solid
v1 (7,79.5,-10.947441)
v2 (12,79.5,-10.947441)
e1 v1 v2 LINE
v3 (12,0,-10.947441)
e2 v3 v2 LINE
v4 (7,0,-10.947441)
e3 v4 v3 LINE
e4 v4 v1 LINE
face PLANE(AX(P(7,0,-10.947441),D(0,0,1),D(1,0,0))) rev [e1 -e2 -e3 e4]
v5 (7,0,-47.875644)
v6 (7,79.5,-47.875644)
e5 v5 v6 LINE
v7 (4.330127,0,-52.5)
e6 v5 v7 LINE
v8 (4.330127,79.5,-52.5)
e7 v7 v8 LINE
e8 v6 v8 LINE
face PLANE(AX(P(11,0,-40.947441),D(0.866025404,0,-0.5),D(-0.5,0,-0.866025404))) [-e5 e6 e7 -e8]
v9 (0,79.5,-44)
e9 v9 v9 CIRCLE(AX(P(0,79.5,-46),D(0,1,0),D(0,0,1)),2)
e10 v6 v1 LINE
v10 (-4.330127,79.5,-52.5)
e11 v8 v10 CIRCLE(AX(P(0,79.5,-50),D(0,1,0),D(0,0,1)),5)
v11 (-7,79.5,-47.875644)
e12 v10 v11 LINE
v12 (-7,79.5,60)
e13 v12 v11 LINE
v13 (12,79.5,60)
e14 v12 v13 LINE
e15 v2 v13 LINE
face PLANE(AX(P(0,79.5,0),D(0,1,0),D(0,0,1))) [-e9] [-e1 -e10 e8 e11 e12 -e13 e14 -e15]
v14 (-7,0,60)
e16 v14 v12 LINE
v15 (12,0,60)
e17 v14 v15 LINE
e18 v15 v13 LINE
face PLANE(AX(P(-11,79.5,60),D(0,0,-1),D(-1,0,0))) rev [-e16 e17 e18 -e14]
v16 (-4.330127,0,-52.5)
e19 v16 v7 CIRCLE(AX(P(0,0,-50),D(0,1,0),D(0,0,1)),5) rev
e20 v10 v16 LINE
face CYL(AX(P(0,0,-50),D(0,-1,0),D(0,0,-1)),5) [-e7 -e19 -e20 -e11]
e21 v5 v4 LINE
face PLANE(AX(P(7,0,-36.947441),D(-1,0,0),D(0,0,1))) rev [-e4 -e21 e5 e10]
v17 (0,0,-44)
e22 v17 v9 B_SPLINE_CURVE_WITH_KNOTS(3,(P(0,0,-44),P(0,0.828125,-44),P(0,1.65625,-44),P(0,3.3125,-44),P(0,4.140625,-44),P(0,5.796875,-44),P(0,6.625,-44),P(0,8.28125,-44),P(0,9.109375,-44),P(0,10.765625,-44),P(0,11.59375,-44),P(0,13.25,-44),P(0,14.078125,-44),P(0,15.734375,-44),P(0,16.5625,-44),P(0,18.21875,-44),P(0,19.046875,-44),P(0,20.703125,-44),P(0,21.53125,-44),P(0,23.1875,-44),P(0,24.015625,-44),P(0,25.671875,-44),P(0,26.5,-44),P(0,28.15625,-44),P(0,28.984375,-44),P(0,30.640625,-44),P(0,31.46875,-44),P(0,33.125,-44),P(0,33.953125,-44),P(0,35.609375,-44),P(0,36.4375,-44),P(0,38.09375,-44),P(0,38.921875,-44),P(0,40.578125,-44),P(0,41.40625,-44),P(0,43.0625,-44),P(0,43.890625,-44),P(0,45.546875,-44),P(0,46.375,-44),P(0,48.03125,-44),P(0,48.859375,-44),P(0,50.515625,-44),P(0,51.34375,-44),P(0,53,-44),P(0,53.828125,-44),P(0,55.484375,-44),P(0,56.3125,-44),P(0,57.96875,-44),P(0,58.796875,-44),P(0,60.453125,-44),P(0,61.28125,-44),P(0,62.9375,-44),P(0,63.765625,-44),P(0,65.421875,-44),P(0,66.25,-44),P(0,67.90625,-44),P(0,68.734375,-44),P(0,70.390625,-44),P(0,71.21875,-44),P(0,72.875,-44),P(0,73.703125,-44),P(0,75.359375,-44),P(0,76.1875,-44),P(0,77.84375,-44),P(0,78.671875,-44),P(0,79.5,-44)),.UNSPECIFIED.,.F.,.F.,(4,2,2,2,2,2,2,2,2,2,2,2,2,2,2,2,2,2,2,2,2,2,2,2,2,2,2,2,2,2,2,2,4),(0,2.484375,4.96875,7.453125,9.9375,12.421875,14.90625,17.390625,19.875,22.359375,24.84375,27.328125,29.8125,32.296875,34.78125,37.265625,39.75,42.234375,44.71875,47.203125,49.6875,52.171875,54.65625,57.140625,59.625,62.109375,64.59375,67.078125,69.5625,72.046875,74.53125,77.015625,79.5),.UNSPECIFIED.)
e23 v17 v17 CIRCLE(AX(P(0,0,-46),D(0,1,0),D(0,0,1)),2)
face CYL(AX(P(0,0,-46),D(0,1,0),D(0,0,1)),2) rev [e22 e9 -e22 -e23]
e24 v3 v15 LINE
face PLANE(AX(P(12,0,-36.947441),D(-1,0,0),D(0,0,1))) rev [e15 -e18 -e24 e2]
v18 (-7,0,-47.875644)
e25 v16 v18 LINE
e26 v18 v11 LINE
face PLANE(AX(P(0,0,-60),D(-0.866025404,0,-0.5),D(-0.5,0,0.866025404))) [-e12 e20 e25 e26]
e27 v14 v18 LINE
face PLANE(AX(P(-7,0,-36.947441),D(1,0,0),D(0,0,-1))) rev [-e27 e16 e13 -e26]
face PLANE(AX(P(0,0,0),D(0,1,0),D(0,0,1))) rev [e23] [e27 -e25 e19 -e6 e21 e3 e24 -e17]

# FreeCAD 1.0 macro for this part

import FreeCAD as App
import Part
import Sketcher
from FreeCAD import Vector
Q = App.Units.Quantity


def edges_at(feature, points):
    """Names of the edges that pass closest to the given points."""
    edges = feature.Shape.Edges
    near = lambda p: min(range(len(edges)), key=lambda i: edges[i].distToShape(Part.Vertex(*p))[0])
    return sorted({f"Edge{near(p) + 1}" for p in points})

doc = App.newDocument("Part")
body = doc.addObject("PartDesign::Body", "Body")

# Sketch on XZ plane
sketch1 = body.newObject("Sketcher::SketchObject", "Sketch")
sketch1.AttachmentSupport = (doc.getObject("XZ_Plane"), [""])
sketch1.MapMode = "FlatFace"
sketch1.addGeometry([
    Part.LineSegment(Vector(-11, -60, 0), Vector(-11, 60, 0)),
    Part.LineSegment(Vector(-11, 60, 0), Vector(11, 60, 0)),
    Part.LineSegment(Vector(11, 60, 0), Vector(11, -60, 0)),
    Part.LineSegment(Vector(11, -60, 0), Vector(-11, -60, 0)),
], False)
sketch1.addConstraint([
    Sketcher.Constraint("Coincident", 0, 2, 1, 1),
    Sketcher.Constraint("Coincident", 1, 2, 2, 1),
    Sketcher.Constraint("Coincident", 2, 2, 3, 1),
    Sketcher.Constraint("Coincident", 3, 2, 0, 1),
    Sketcher.Constraint("Vertical", 0),
    Sketcher.Constraint("Horizontal", 1),
    Sketcher.Constraint("Vertical", 2),
    Sketcher.Constraint("Horizontal", 3),
    Sketcher.Constraint("Symmetric", 0, 2, 2, 2, -1, 1),
    Sketcher.Constraint("DistanceX", 1, 1, 1, 2, 22.0),
    Sketcher.Constraint("DistanceY", 0, 1, 0, 2, 120.0),
])
pad1 = body.newObject("PartDesign::Pad", "Pad")
pad1.Profile = sketch1
pad1.Length = 79.5
pad1.Reversed = True

# Sketch on XZ plane
sketch2 = body.newObject("Sketcher::SketchObject", "Sketch001")
sketch2.AttachmentSupport = (doc.getObject("XZ_Plane"), [""])
sketch2.MapMode = "FlatFace"
sketch2.AttachmentOffset = App.Placement(Vector(0, 0, -79.5), App.Rotation())
sketch2.addGeometry([
    Part.LineSegment(Vector(-27, -76, 0), Vector(-27, 76, 0)),  # 0
    Part.LineSegment(Vector(-27, 76, 0), Vector(27, 76, 0)),  # 1
    Part.LineSegment(Vector(27, 76, 0), Vector(27, -76, 0)),  # 2
    Part.LineSegment(Vector(27, -76, 0), Vector(-27, -76, 0)),  # 3
    Part.LineSegment(Vector(-11, -41, 0), Vector(0, -60, 0)),  # 4
    Part.LineSegment(Vector(0, -60, 0), Vector(11, -41, 0)),  # 5
    Part.LineSegment(Vector(11, -41, 0), Vector(11, 60, 0)),  # 6
    Part.LineSegment(Vector(11, 60, 0), Vector(-11, 60, 0)),  # 7
    Part.LineSegment(Vector(-11, 60, 0), Vector(-11, -41, 0)),  # 8
], False)
sketch2.addConstraint([
    Sketcher.Constraint("Coincident", 0, 2, 1, 1),
    Sketcher.Constraint("Coincident", 1, 2, 2, 1),
    Sketcher.Constraint("Coincident", 2, 2, 3, 1),
    Sketcher.Constraint("Coincident", 3, 2, 0, 1),
    Sketcher.Constraint("Coincident", 4, 2, 5, 1),
    Sketcher.Constraint("Coincident", 5, 2, 6, 1),
    Sketcher.Constraint("Coincident", 6, 2, 7, 1),
    Sketcher.Constraint("Coincident", 7, 2, 8, 1),
    Sketcher.Constraint("Coincident", 8, 2, 4, 1),
    Sketcher.Constraint("Vertical", 0),
    Sketcher.Constraint("Horizontal", 1),
    Sketcher.Constraint("Vertical", 2),
    Sketcher.Constraint("Horizontal", 3),
    Sketcher.Constraint("Vertical", 6),
    Sketcher.Constraint("Horizontal", 7),
    Sketcher.Constraint("Vertical", 8),
    Sketcher.Constraint("Symmetric", 0, 2, 2, 2, -1, 1),
    Sketcher.Constraint("Symmetric", 5, 2, 8, 2, -2),
    Sketcher.Constraint("PointOnObject", 4, 2, -2),
    Sketcher.Constraint("DistanceX", 7, 2, 7, 1, 22.0),
    Sketcher.Constraint("Angle", 4, Q("-60 deg")),
    Sketcher.Constraint("DistanceY", 4, 2, -1, 1, 60.0),
    Sketcher.Constraint("DistanceY", -1, 1, 6, 2, 60.0),
    Sketcher.Constraint("DistanceX", 1, 1, 1, 2, 53.124),
    Sketcher.Constraint("DistanceY", 0, 1, 0, 2, 151.124),
])
pocket1 = body.newObject("PartDesign::Pocket", "Pocket")
pocket1.Profile = sketch2
pocket1.Type = "ThroughAll"
pocket1.Reversed = True
doc.recompute()

fillet = body.newObject("PartDesign::Fillet", "Fillet")
fillet.Base = (pocket1, edges_at(pocket1, [(0, 39.75, -60)]))
fillet.Radius = 5

# Sketch on XZ plane
sketch3 = body.newObject("Sketcher::SketchObject", "Sketch002")
sketch3.AttachmentSupport = (doc.getObject("XZ_Plane"), [""])
sketch3.MapMode = "FlatFace"
sketch3.AttachmentOffset = App.Placement(Vector(0, 0, -79.5), App.Rotation())
sketch3.addGeometry([
    Part.LineSegment(Vector(-11, -36.9, 0), Vector(-7, -36.9, 0)),  # 0
    Part.LineSegment(Vector(-7, -36.9, 0), Vector(-7, -47.9, 0)),  # 1
    Part.LineSegment(Vector(-7, -47.9, 0), Vector(-11, -40.9, 0)),  # 2
    Part.LineSegment(Vector(-11, -40.9, 0), Vector(-11, -36.9, 0)),  # 3
    Part.LineSegment(Vector(11, -40.9, 0), Vector(7, -47.9, 0)),  # 4
    Part.LineSegment(Vector(7, -47.9, 0), Vector(7, -36.9, 0)),  # 5
    Part.LineSegment(Vector(7, -36.9, 0), Vector(11, -36.9, 0)),  # 6
    Part.LineSegment(Vector(11, -36.9, 0), Vector(11, -40.9, 0)),  # 7
], False)
sketch3.addConstraint([
    Sketcher.Constraint("Coincident", 0, 2, 1, 1),
    Sketcher.Constraint("Coincident", 1, 2, 2, 1),
    Sketcher.Constraint("Coincident", 2, 2, 3, 1),
    Sketcher.Constraint("Coincident", 3, 2, 0, 1),
    Sketcher.Constraint("Coincident", 4, 2, 5, 1),
    Sketcher.Constraint("Coincident", 5, 2, 6, 1),
    Sketcher.Constraint("Coincident", 6, 2, 7, 1),
    Sketcher.Constraint("Coincident", 7, 2, 4, 1),
    Sketcher.Constraint("Horizontal", 0),
    Sketcher.Constraint("Vertical", 1),
    Sketcher.Constraint("Vertical", 3),
    Sketcher.Constraint("Vertical", 5),
    Sketcher.Constraint("Horizontal", 6),
    Sketcher.Constraint("Vertical", 7),
    Sketcher.Constraint("Symmetric", 1, 2, 4, 2, -2),
    Sketcher.Constraint("Symmetric", 3, 2, 6, 2, -2),
    Sketcher.Constraint("Horizontal", 2, 2, 7, 2),
    Sketcher.Constraint("Equal", 6, 3),
    Sketcher.Constraint("DistanceX", 0, 1, 0, 2, 4.0),
    Sketcher.Constraint("Angle", 2, Q("120 deg")),
    Sketcher.Constraint("DistanceX", 0, 2, -1, 1, 7.0),
    Sketcher.Constraint("DistanceY", 0, 2, -1, 1, 36.947441),
])
pocket2 = body.newObject("PartDesign::Pocket", "Pocket001")
pocket2.Profile = sketch3
pocket2.Type = "ThroughAll"
pocket2.Reversed = True

# Sketch on YZ plane
sketch4 = body.newObject("Sketcher::SketchObject", "Sketch003")
sketch4.AttachmentSupport = (doc.getObject("YZ_Plane"), [""])
sketch4.MapMode = "FlatFace"
sketch4.AttachmentOffset = App.Placement(Vector(0, 0, 11), App.Rotation())
sketch4.addGeometry([
    Part.LineSegment(Vector(80, 60, 0), Vector(0, 60, 0)),
    Part.LineSegment(Vector(0, 60, 0), Vector(0, -37, 0)),
    Part.LineSegment(Vector(0, -37, 0), Vector(80, -37, 0)),
    Part.LineSegment(Vector(80, -37, 0), Vector(80, 60, 0)),
], False)
sketch4.addConstraint([
    Sketcher.Constraint("Coincident", 0, 2, 1, 1),
    Sketcher.Constraint("Coincident", 1, 2, 2, 1),
    Sketcher.Constraint("Coincident", 2, 2, 3, 1),
    Sketcher.Constraint("Coincident", 3, 2, 0, 1),
    Sketcher.Constraint("Horizontal", 0),
    Sketcher.Constraint("Vertical", 1),
    Sketcher.Constraint("Horizontal", 2),
    Sketcher.Constraint("Vertical", 3),
    Sketcher.Constraint("PointOnObject", 0, 2, -2),
    Sketcher.Constraint("DistanceX", 0, 2, 0, 1, 79.5),
    Sketcher.Constraint("DistanceY", -1, 1, 0, 2, 60.0),
    Sketcher.Constraint("DistanceY", 1, 2, 1, 1, 96.947441),
])
pad2 = body.newObject("PartDesign::Pad", "Pad001")
pad2.Profile = sketch4
pad2.Length = 5

# Sketch on XZ plane
sketch5 = body.newObject("Sketcher::SketchObject", "Sketch004")
sketch5.AttachmentSupport = (doc.getObject("XZ_Plane"), [""])
sketch5.MapMode = "FlatFace"
sketch5.AttachmentOffset = App.Placement(Vector(0, 0, -79.5), App.Rotation())
sketch5.addGeometry([
    Part.LineSegment(Vector(-11, -36.9, 0), Vector(-11, 60, 0)),
    Part.LineSegment(Vector(-11, 60, 0), Vector(-7, 60, 0)),
    Part.LineSegment(Vector(-7, 60, 0), Vector(-7, -36.9, 0)),
    Part.LineSegment(Vector(-7, -36.9, 0), Vector(-11, -36.9, 0)),
], False)
sketch5.addConstraint([
    Sketcher.Constraint("Coincident", 0, 2, 1, 1),
    Sketcher.Constraint("Coincident", 1, 2, 2, 1),
    Sketcher.Constraint("Coincident", 2, 2, 3, 1),
    Sketcher.Constraint("Coincident", 3, 2, 0, 1),
    Sketcher.Constraint("Vertical", 0),
    Sketcher.Constraint("Horizontal", 1),
    Sketcher.Constraint("Vertical", 2),
    Sketcher.Constraint("Horizontal", 3),
    Sketcher.Constraint("DistanceX", 1, 1, 1, 2, 4.0),
    Sketcher.Constraint("DistanceX", 0, 2, -1, 1, 11.0),
    Sketcher.Constraint("DistanceY", -1, 1, 0, 2, 60.0),
    Sketcher.Constraint("DistanceY", 0, 1, 0, 2, 96.947441),
])
pocket3 = body.newObject("PartDesign::Pocket", "Pocket002")
pocket3.Profile = sketch5
pocket3.Type = "ThroughAll"
pocket3.Reversed = True

# Sketch on XZ plane
sketch6 = body.newObject("Sketcher::SketchObject", "Sketch005")
sketch6.AttachmentSupport = (doc.getObject("XZ_Plane"), [""])
sketch6.MapMode = "FlatFace"
sketch6.AttachmentOffset = App.Placement(Vector(0, 0, -79.5), App.Rotation())
sketch6.addGeometry([
    Part.LineSegment(Vector(12, -36.9, 0), Vector(12, 60, 0)),
    Part.LineSegment(Vector(12, 60, 0), Vector(16, 60, 0)),
    Part.LineSegment(Vector(16, 60, 0), Vector(16, -36.9, 0)),
    Part.LineSegment(Vector(16, -36.9, 0), Vector(12, -36.9, 0)),
], False)
sketch6.addConstraint([
    Sketcher.Constraint("Coincident", 0, 2, 1, 1),
    Sketcher.Constraint("Coincident", 1, 2, 2, 1),
    Sketcher.Constraint("Coincident", 2, 2, 3, 1),
    Sketcher.Constraint("Coincident", 3, 2, 0, 1),
    Sketcher.Constraint("Vertical", 0),
    Sketcher.Constraint("Horizontal", 1),
    Sketcher.Constraint("Vertical", 2),
    Sketcher.Constraint("Horizontal", 3),
    Sketcher.Constraint("DistanceX", 1, 1, 1, 2, 4.0),
    Sketcher.Constraint("DistanceX", -1, 1, 0, 2, 12.0),
    Sketcher.Constraint("DistanceY", -1, 1, 0, 2, 60.0),
    Sketcher.Constraint("DistanceY", 0, 1, 0, 2, 96.947441),
])
pocket4 = body.newObject("PartDesign::Pocket", "Pocket003")
pocket4.Profile = sketch6
pocket4.Type = "ThroughAll"
pocket4.Reversed = True

# Sketch on XZ plane
sketch7 = body.newObject("Sketcher::SketchObject", "Sketch006")
sketch7.AttachmentSupport = (doc.getObject("XZ_Plane"), [""])
sketch7.MapMode = "FlatFace"
sketch7.AttachmentOffset = App.Placement(Vector(0, 0, -79.5), App.Rotation())
sketch7.addGeometry(Part.Circle(Vector(0, -46, 0), Vector(0, 0, 1), 2), False)
sketch7.addConstraint([
    Sketcher.Constraint("PointOnObject", 0, 3, -2),
    Sketcher.Constraint("Diameter", 0, 4.0),
    Sketcher.Constraint("DistanceY", 0, 3, -1, 1, 46.0),
])
pocket5 = body.newObject("PartDesign::Pocket", "Pocket004")
pocket5.Profile = sketch7
pocket5.Type = "ThroughAll"
pocket5.Reversed = True

# Sketch on XZ plane
sketch8 = body.newObject("Sketcher::SketchObject", "Sketch007")
sketch8.AttachmentSupport = (doc.getObject("XZ_Plane"), [""])
sketch8.MapMode = "FlatFace"
sketch8.AttachmentOffset = App.Placement(Vector(0, 0, -79.5), App.Rotation())
sketch8.addGeometry([
    Part.LineSegment(Vector(7, -37, 0), Vector(7, -11, 0)),
    Part.LineSegment(Vector(7, -11, 0), Vector(12, -11, 0)),
    Part.LineSegment(Vector(12, -11, 0), Vector(12, -37, 0)),
    Part.LineSegment(Vector(12, -37, 0), Vector(7, -37, 0)),
], False)
sketch8.addConstraint([
    Sketcher.Constraint("Coincident", 0, 2, 1, 1),
    Sketcher.Constraint("Coincident", 1, 2, 2, 1),
    Sketcher.Constraint("Coincident", 2, 2, 3, 1),
    Sketcher.Constraint("Coincident", 3, 2, 0, 1),
    Sketcher.Constraint("Vertical", 0),
    Sketcher.Constraint("Horizontal", 1),
    Sketcher.Constraint("Vertical", 2),
    Sketcher.Constraint("Horizontal", 3),
    Sketcher.Constraint("DistanceX", 1, 1, 1, 2, 5.0),
    Sketcher.Constraint("DistanceY", 0, 1, 0, 2, 26.0),
    Sketcher.Constraint("DistanceX", -1, 1, 0, 2, 7.0),
    Sketcher.Constraint("DistanceY", 0, 2, -1, 1, 10.947441),
])
pocket6 = body.newObject("PartDesign::Pocket", "Pocket005")
pocket6.Profile = sketch8
pocket6.Type = "ThroughAll"
pocket6.Reversed = True

doc.recompute()
